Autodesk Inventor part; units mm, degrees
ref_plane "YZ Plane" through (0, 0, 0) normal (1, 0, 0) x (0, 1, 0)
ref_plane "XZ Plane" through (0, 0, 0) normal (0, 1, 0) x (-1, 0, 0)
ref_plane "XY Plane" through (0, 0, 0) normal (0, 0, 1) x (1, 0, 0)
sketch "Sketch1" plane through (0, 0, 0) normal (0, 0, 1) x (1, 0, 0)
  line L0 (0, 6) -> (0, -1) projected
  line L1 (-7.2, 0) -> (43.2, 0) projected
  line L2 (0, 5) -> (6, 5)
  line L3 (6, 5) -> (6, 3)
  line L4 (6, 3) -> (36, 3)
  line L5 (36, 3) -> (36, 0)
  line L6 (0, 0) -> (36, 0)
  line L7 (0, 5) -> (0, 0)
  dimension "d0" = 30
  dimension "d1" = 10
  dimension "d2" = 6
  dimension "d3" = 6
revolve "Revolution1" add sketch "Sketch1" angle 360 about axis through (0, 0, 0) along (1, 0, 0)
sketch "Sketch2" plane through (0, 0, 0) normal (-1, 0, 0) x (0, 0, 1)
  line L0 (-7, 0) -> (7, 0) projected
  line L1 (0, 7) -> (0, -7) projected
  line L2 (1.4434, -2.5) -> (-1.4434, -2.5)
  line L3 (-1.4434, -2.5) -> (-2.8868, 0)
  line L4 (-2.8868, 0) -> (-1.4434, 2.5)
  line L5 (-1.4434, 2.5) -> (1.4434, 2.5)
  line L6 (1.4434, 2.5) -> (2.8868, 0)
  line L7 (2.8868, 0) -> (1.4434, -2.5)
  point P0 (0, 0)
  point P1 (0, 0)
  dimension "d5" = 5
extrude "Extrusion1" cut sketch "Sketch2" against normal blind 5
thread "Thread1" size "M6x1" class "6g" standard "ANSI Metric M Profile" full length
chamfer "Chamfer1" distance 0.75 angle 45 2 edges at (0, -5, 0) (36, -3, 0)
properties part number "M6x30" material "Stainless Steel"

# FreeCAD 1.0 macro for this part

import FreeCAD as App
import Part
import Sketcher

V = App.Vector
Q = App.Units.Quantity


def edges_at(feature, points):
    """Names of the edges that pass closest to the given points."""
    edges = feature.Shape.Edges
    near = lambda p: min(range(len(edges)), key=lambda i: edges[i].distToShape(Part.Vertex(*p))[0])
    return sorted({f"Edge{near(p) + 1}" for p in points})

doc = App.newDocument("Part")
body = doc.addObject("PartDesign::Body", "Body")

# Sketch on XY plane
sketch1 = doc.addObject("Sketcher::SketchObject", "Sketch")
body.addObject(sketch1)
sketch1.AttachmentSupport = (doc.XY_Plane, [""])
sketch1.MapMode = "FlatFace"
sketch1.addGeometry([
    Part.LineSegment(V(6, 5, 0), V(0, 5, 0)),  # 0
    Part.LineSegment(V(0, 5, 0), V(0, 0, 0)),  # 1
    Part.LineSegment(V(0, 0, 0), V(36, 0, 0)),  # 2
    Part.LineSegment(V(36, 0, 0), V(36, 3, 0)),  # 3
    Part.LineSegment(V(36, 3, 0), V(6, 3, 0)),  # 4
    Part.LineSegment(V(6, 3, 0), V(6, 5, 0)),  # 5
], False)
sketch1.addConstraint([
    Sketcher.Constraint("Coincident", 0, 2, 1, 1),
    Sketcher.Constraint("Coincident", 1, 2, 2, 1),
    Sketcher.Constraint("Coincident", 2, 2, 3, 1),
    Sketcher.Constraint("Coincident", 3, 2, 4, 1),
    Sketcher.Constraint("Coincident", 4, 2, 5, 1),
    Sketcher.Constraint("Coincident", 5, 2, 0, 1),
    Sketcher.Constraint("Horizontal", 0),
    Sketcher.Constraint("Vertical", 1),
    Sketcher.Constraint("Horizontal", 2),
    Sketcher.Constraint("Vertical", 3),
    Sketcher.Constraint("Horizontal", 4),
    Sketcher.Constraint("Vertical", 5),
    Sketcher.Constraint("Coincident", 1, 2, -1, 1),
    Sketcher.Constraint("DistanceX", 0, 2, 0, 1, Q("6 mm")),
    Sketcher.Constraint("DistanceX", 4, 2, 4, 1, Q("30 mm")),
    Sketcher.Constraint("DistanceY", 1, 2, 1, 1, Q("5 mm")),
    Sketcher.Constraint("DistanceY", 3, 1, 3, 2, Q("3 mm")),
])
revolution = doc.addObject("PartDesign::Revolution", "Revolution")
body.addObject(revolution)
revolution.Profile = sketch1
revolution.ReferenceAxis = (sketch1, ["H_Axis"])
revolution.Angle = 360

# Sketch on YZ plane
sketch2 = doc.addObject("Sketcher::SketchObject", "Sketch001")
body.addObject(sketch2)
sketch2.AttachmentSupport = (doc.YZ_Plane, [""])
sketch2.MapMode = "FlatFace"
sketch2.addGeometry([
    Part.LineSegment(V(2.5, -1.4, 0), V(0, -2.9, 0)),  # 0
    Part.LineSegment(V(0, -2.9, 0), V(-2.5, -1.4, 0)),  # 1
    Part.LineSegment(V(-2.5, -1.4, 0), V(-2.5, 1.4, 0)),  # 2
    Part.LineSegment(V(-2.5, 1.4, 0), V(0, 2.9, 0)),  # 3
    Part.LineSegment(V(0, 2.9, 0), V(2.5, 1.4, 0)),  # 4
    Part.LineSegment(V(2.5, 1.4, 0), V(2.5, -1.4, 0)),  # 5
], False)
sketch2.addConstraint([
    Sketcher.Constraint("Coincident", 0, 2, 1, 1),
    Sketcher.Constraint("Coincident", 1, 2, 2, 1),
    Sketcher.Constraint("Coincident", 2, 2, 3, 1),
    Sketcher.Constraint("Coincident", 3, 2, 4, 1),
    Sketcher.Constraint("Coincident", 4, 2, 5, 1),
    Sketcher.Constraint("Coincident", 5, 2, 0, 1),
    Sketcher.Constraint("Vertical", 2),
    Sketcher.Constraint("Vertical", 5),
    Sketcher.Constraint("Symmetric", 0, 2, 3, 2, -1, 1),
    Sketcher.Constraint("Symmetric", 1, 2, 4, 2, -1, 1),
    Sketcher.Constraint("PointOnObject", 0, 2, -2),
    Sketcher.Constraint("Parallel", 0, 3),
    Sketcher.Constraint("Horizontal", 2, 2, 4, 2),
    Sketcher.Constraint("DistanceX", 2, 2, 4, 2, Q("5 mm")),
    Sketcher.Constraint("Angle", 0, Q("-149.9996 deg")),
    Sketcher.Constraint("DistanceY", 2, 1, 2, 2, Q("2.8868 mm")),
])
pocket1 = doc.addObject("PartDesign::Pocket", "Pocket")
body.addObject(pocket1)
pocket1.Profile = sketch2
pocket1.Length = 5
pocket1.Reversed = True
doc.recompute()

chamfer = doc.addObject("PartDesign::Chamfer", "Chamfer")
body.addObject(chamfer)
chamfer.Base = (pocket1, edges_at(pocket1, [(0, -5, 0), (36, -3, 0)]))
chamfer.Size = 0.75

doc.recompute()
